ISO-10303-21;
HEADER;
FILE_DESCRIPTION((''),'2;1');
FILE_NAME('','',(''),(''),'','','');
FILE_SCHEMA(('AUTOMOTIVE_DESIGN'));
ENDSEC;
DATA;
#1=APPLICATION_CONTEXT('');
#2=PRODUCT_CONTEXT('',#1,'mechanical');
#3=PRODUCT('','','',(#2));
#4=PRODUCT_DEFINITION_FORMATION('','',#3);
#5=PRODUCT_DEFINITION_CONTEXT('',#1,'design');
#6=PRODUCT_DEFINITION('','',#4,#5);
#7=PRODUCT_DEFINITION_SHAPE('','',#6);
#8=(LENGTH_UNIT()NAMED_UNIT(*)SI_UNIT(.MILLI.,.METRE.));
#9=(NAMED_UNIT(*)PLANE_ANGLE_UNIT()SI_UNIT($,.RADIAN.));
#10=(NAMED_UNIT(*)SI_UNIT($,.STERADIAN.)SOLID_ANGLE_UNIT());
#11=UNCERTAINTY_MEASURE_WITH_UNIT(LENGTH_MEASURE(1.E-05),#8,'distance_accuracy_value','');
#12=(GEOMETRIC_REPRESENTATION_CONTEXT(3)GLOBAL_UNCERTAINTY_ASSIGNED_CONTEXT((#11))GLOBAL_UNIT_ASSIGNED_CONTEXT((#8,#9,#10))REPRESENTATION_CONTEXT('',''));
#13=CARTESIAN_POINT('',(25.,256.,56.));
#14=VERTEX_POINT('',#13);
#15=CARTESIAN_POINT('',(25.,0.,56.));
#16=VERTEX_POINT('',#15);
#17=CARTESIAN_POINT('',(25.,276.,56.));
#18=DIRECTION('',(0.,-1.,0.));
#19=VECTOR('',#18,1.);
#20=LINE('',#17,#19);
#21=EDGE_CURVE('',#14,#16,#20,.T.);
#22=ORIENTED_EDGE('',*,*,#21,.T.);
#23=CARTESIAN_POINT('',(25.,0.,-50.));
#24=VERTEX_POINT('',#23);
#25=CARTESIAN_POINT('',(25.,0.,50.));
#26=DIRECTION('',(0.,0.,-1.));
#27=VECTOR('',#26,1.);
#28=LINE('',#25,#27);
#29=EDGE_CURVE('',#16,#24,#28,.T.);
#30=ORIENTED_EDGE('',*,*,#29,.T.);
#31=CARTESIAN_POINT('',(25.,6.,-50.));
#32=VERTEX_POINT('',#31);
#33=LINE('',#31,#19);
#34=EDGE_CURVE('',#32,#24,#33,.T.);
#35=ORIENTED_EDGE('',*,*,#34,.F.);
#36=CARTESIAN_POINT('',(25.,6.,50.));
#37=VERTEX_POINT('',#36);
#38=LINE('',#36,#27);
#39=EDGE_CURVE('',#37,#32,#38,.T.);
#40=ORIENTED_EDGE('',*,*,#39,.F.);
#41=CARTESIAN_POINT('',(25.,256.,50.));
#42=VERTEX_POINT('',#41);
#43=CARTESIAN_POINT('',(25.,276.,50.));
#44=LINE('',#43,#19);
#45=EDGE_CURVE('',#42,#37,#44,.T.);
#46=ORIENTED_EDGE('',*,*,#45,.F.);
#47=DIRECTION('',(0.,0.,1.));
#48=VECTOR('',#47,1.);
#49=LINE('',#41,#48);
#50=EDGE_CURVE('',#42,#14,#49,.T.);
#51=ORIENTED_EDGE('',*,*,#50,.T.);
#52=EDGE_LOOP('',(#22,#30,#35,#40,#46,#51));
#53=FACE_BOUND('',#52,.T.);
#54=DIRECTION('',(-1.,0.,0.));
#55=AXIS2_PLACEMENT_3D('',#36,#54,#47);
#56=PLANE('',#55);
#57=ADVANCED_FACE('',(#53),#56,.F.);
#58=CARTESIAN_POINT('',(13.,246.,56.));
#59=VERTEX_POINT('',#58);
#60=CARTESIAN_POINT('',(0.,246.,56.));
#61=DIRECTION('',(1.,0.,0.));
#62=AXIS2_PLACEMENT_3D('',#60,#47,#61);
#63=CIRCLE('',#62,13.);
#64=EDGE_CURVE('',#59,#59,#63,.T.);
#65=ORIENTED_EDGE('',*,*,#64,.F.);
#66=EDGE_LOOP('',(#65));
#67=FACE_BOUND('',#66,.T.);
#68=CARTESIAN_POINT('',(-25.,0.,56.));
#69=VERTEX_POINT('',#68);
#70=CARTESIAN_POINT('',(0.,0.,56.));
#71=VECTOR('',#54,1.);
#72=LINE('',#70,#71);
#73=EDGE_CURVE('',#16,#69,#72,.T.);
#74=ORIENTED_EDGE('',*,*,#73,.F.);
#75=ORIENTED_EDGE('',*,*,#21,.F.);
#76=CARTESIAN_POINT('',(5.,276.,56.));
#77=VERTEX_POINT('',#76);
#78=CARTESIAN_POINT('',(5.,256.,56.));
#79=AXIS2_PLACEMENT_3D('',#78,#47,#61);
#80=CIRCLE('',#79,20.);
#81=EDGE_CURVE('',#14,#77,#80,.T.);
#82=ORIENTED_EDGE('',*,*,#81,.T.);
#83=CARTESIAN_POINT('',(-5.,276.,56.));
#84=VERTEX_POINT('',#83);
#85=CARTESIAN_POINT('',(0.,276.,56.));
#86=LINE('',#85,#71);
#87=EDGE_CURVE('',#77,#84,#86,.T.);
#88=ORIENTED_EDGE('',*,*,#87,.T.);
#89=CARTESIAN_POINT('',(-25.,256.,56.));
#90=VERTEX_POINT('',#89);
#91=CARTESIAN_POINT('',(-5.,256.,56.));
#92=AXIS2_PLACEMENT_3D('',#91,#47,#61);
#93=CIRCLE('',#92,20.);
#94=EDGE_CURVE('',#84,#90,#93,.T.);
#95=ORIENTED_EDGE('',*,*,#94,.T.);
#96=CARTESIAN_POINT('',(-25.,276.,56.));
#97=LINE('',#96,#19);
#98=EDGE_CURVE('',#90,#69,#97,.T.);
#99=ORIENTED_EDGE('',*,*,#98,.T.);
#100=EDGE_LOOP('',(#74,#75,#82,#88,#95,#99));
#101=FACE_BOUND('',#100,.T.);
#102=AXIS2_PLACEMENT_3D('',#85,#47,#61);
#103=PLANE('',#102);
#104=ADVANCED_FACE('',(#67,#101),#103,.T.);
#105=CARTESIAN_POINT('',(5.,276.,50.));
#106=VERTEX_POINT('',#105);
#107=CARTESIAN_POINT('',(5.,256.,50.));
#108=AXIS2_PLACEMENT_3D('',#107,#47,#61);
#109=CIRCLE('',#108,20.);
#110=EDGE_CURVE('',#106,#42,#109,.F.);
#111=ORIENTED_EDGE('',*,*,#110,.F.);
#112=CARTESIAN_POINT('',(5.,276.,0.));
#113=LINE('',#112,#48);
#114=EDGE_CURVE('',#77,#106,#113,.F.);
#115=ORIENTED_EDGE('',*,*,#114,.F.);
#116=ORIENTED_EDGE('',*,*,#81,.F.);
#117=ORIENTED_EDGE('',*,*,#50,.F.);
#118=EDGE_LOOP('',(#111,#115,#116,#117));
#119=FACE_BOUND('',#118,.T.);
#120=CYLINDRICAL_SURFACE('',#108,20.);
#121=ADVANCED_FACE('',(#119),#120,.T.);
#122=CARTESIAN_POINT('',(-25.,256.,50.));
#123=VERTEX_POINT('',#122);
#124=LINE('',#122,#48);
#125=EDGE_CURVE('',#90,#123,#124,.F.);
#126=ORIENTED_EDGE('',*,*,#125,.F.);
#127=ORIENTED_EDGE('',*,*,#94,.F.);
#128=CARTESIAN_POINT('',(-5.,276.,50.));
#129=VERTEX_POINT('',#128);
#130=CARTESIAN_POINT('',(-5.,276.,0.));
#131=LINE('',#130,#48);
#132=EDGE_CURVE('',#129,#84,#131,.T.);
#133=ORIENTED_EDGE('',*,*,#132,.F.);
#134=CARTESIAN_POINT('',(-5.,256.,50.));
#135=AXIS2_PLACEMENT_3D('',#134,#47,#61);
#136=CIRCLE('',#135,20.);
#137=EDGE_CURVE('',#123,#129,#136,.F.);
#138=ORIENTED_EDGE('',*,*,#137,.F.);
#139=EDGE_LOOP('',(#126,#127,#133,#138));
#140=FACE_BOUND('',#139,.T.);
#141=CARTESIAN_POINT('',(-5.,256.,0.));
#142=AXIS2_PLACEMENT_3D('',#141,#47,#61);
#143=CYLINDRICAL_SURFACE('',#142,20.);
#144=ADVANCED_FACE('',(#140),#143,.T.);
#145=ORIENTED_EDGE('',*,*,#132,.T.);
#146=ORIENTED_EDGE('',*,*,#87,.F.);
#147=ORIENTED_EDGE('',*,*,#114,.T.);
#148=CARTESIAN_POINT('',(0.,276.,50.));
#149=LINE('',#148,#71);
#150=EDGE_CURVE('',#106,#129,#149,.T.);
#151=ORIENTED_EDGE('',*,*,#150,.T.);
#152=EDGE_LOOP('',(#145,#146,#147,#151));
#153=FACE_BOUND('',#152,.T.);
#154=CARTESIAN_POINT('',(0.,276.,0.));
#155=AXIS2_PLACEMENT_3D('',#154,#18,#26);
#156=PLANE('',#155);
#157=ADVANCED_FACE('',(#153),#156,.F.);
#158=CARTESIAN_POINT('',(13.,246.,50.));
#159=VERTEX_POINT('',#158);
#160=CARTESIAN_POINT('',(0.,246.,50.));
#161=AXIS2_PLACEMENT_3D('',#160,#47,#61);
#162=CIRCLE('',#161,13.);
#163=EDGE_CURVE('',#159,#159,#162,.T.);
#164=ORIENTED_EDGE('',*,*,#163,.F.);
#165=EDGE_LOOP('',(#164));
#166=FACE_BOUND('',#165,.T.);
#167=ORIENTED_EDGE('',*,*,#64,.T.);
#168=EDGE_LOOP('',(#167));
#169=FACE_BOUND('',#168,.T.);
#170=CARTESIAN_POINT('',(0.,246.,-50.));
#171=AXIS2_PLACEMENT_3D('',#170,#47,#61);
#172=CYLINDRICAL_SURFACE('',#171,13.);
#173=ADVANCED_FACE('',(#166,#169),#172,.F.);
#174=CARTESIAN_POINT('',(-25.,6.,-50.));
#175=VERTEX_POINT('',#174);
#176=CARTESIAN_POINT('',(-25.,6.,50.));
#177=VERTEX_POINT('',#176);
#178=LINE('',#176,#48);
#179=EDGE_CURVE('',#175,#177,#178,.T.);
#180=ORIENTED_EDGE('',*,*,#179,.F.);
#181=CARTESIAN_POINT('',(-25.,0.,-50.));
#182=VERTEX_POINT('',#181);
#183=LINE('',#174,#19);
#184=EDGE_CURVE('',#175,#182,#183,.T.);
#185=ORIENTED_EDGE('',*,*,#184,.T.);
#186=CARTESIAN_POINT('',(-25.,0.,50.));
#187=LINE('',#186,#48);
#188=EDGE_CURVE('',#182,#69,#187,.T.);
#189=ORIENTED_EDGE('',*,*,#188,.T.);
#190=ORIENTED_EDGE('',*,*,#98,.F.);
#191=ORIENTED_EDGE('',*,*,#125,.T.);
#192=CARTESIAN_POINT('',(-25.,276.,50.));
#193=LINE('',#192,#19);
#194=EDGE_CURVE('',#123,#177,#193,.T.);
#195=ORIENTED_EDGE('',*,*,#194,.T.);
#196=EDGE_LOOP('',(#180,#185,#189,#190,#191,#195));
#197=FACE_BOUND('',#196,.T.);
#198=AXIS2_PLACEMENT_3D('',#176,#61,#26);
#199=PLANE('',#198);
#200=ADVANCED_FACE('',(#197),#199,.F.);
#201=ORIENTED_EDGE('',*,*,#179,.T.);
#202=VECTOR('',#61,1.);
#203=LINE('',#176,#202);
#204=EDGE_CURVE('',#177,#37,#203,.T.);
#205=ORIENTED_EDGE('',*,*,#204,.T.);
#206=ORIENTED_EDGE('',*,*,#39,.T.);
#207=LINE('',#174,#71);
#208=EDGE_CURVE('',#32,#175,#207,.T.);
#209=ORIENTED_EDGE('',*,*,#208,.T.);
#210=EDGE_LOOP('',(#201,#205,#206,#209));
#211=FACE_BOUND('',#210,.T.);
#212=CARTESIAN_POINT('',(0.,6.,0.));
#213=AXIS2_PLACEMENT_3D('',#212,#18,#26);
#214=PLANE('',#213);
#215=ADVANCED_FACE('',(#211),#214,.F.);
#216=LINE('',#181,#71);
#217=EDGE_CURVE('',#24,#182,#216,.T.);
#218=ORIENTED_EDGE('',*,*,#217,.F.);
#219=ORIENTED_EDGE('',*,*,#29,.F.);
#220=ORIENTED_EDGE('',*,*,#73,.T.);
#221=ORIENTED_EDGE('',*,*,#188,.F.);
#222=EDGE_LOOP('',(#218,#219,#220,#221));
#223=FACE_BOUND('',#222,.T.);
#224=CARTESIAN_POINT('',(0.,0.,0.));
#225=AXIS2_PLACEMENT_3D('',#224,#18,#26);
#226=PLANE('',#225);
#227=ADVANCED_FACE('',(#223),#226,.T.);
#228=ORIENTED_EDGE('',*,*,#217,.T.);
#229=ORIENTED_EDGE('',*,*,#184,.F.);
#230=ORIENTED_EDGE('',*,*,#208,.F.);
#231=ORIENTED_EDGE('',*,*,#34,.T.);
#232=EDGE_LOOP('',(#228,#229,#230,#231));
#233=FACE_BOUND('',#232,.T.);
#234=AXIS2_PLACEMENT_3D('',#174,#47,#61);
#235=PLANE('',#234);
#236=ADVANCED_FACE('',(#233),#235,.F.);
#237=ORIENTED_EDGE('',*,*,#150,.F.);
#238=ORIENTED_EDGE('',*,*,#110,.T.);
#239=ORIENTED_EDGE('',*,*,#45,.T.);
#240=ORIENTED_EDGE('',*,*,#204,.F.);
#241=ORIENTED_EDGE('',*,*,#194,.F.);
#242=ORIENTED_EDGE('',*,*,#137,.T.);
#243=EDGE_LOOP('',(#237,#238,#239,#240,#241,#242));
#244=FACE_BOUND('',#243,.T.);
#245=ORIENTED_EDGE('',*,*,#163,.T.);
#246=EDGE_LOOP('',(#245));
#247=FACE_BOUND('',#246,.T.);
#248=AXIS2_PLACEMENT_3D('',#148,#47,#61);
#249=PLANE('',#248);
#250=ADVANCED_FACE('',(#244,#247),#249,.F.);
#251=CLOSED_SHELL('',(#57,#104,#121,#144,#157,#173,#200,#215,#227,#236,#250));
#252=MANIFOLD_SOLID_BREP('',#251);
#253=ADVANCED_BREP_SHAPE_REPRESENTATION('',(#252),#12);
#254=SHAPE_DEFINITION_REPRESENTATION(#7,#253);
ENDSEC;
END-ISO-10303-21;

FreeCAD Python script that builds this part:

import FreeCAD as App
import Part
import Sketcher
from FreeCAD import Vector
Q = App.Units.Quantity


def edges_at(feature, points):
    """Names of the edges that pass closest to the given points."""
    edges = feature.Shape.Edges
    near = lambda p: min(range(len(edges)), key=lambda i: edges[i].distToShape(Part.Vertex(*p))[0])
    return sorted({f"Edge{near(p) + 1}" for p in points})


def add_polygon(sketch, points):
    """Adds a closed chain of lines whose ends are joined by coincident constraints."""
    first, n = sketch.GeometryCount, len(points)
    for a, b in zip(points, points[1:] + points[:1]):
        sketch.addGeometry(Part.LineSegment(App.Vector(*a, 0), App.Vector(*b, 0)), False)
    for i in range(n):
        sketch.addConstraint(Sketcher.Constraint("Coincident", first + i, 2, first + (i + 1) % n, 1))

doc = App.newDocument("Part")
body = doc.addObject("PartDesign::Body", "Body")

# Sketch on XZ plane
sketch1 = body.newObject("Sketcher::SketchObject", "Sketch")
sketch1.AttachmentSupport = (doc.getObject("XZ_Plane"), [""])
sketch1.MapMode = "FlatFace"
add_polygon(sketch1, [(-25, -50), (-25, 50), (25, 50), (25, -50)])  # lines 0-3
sketch1.addConstraint(Sketcher.Constraint("Vertical", 0))
sketch1.addConstraint(Sketcher.Constraint("Horizontal", 1))
sketch1.addConstraint(Sketcher.Constraint("Vertical", 2))
sketch1.addConstraint(Sketcher.Constraint("Horizontal", 3))
sketch1.addConstraint(Sketcher.Constraint("Symmetric", 0, 2, 2, 2, -1, 1))
sketch1.addConstraint(Sketcher.Constraint("DistanceX", 1, 1, 1, 2, Q("50 mm")))
sketch1.addConstraint(Sketcher.Constraint("DistanceY", 0, 1, 0, 2, Q("100 mm")))
pad1 = body.newObject("PartDesign::Pad", "Pad")
pad1.Profile = sketch1
pad1.Length = 6
pad1.Reversed = True

# Sketch on XZ plane
sketch2 = body.newObject("Sketcher::SketchObject", "Sketch001")
sketch2.AttachmentSupport = (doc.getObject("XZ_Plane"), [""])
sketch2.MapMode = "FlatFace"
add_polygon(sketch2, [(-25, 56), (-25, 50), (25, 50), (25, 56)])  # lines 0-3
sketch2.addConstraint(Sketcher.Constraint("Vertical", 0))
sketch2.addConstraint(Sketcher.Constraint("Horizontal", 1))
sketch2.addConstraint(Sketcher.Constraint("Vertical", 2))
sketch2.addConstraint(Sketcher.Constraint("Horizontal", 3))
sketch2.addConstraint(Sketcher.Constraint("DistanceX", 1, 1, 1, 2, Q("50 mm")))
sketch2.addConstraint(Sketcher.Constraint("DistanceY", 0, 2, 0, 1, Q("6 mm")))
sketch2.addConstraint(Sketcher.Constraint("DistanceX", 0, 2, -1, 1, Q("25 mm")))
sketch2.addConstraint(Sketcher.Constraint("DistanceY", -1, 1, 0, 2, Q("50 mm")))
pad2 = body.newObject("PartDesign::Pad", "Pad001")
pad2.Profile = sketch2
pad2.Length = 276
pad2.Reversed = True

# Sketch on XY plane
sketch3 = body.newObject("Sketcher::SketchObject", "Sketch002")
sketch3.AttachmentSupport = (doc.getObject("XY_Plane"), [""])
sketch3.MapMode = "FlatFace"
sketch3.AttachmentOffset = App.Placement(Vector(0, 0, 56), App.Rotation())
sketch3.addGeometry(Part.Circle(Vector(0, 246, 0), Vector(0, 0, 1), 13), False)
sketch3.addConstraint(Sketcher.Constraint("PointOnObject", 0, 3, -2))
sketch3.addConstraint(Sketcher.Constraint("Diameter", 0, Q("26 mm")))
sketch3.addConstraint(Sketcher.Constraint("DistanceY", -1, 1, 0, 3, Q("246 mm")))
pocket1 = body.newObject("PartDesign::Pocket", "Pocket")
pocket1.Profile = sketch3
pocket1.Length = 6
doc.recompute()

fillet = body.newObject("PartDesign::Fillet", "Fillet")
fillet.Base = (pocket1, edges_at(pocket1, [(25, 276, 53), (-25, 276, 53)]))
fillet.Radius = 20

doc.recompute()
